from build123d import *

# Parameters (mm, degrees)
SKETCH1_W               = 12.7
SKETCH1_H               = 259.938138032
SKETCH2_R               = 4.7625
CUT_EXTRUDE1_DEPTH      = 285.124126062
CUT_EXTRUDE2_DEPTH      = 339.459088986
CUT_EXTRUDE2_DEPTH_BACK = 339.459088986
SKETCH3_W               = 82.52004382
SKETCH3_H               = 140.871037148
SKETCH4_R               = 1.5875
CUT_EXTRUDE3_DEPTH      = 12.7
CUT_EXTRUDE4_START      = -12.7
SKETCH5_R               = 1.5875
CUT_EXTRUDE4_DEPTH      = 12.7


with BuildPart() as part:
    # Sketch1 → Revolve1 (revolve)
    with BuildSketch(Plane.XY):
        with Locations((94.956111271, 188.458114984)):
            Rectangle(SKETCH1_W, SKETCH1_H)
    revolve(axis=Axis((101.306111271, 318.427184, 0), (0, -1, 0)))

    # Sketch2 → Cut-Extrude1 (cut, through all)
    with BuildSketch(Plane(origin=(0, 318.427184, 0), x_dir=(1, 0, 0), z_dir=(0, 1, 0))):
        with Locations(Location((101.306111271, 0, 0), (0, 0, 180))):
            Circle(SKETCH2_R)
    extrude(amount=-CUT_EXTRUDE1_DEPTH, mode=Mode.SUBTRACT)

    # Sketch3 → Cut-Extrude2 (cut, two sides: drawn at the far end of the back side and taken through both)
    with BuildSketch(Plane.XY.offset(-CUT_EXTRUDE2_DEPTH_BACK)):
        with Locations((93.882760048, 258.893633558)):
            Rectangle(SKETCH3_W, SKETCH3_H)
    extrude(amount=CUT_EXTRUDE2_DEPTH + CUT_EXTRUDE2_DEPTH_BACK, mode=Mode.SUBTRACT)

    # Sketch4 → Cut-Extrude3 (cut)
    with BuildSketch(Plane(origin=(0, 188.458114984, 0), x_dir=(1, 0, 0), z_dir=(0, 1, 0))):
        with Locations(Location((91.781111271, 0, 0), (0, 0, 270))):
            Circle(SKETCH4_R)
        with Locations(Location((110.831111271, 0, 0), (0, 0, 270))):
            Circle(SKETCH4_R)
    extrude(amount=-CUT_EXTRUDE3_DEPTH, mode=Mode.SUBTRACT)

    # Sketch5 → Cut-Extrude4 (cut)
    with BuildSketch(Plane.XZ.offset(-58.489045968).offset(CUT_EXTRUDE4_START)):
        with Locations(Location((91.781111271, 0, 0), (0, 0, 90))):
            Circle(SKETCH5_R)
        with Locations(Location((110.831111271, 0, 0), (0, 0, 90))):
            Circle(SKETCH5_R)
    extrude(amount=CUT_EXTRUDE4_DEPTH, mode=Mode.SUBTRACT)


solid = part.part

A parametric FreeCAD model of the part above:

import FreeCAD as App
import Part
import Sketcher
Q = App.Units.Quantity


def add_polygon(sketch, points):
    """Adds a closed chain of lines whose ends are joined by coincident constraints."""
    first, n = sketch.GeometryCount, len(points)
    for a, b in zip(points, points[1:] + points[:1]):
        sketch.addGeometry(Part.LineSegment(App.Vector(*a, 0), App.Vector(*b, 0)), False)
    for i in range(n):
        sketch.addConstraint(Sketcher.Constraint("Coincident", first + i, 2, first + (i + 1) % n, 1))

doc = App.newDocument("Part")
params = doc.addObject("Spreadsheet::Sheet", "Params")
for row, (alias, value) in enumerate([
    ("sketch1_width", "0.5 in"),
    ("revolution_angle", "360 deg"),
    ("sketch2_diameter", "0.375 in"),
    ("sketch4_diameter", "0.125 in"),
    ("pocket3_length", "0.5 in"),
    ("sketch5_diameter", "0.125 in"),
    ("pocket4_length", "0.5 in"),
], start=1):
    params.set(f"A{row}", alias)
    params.set(f"B{row}", "=" + value)
    params.setAlias(f"B{row}", alias)

body = doc.addObject("PartDesign::Body", "Body")

# Sketch on XY plane
sketch1 = body.newObject("Sketcher::SketchObject", "Sketch")
sketch1.AttachmentSupport = (doc.getObject("XY_Plane"), [""])
sketch1.MapMode = "FlatFace"
add_polygon(sketch1, [(88.606111, 318.427184), (88.606111, 58.489046), (101.306111, 58.489046), (101.306111, 318.427184)])  # lines 0-3
sketch1.addGeometry(Part.LineSegment(App.Vector(101.306111, 318.427184, 0), App.Vector(101.306111, 58.489046, 0)), True)  # axis
sketch1.addConstraint([
    Sketcher.Constraint("Vertical", 0),
    Sketcher.Constraint("Horizontal", 1),
    Sketcher.Constraint("Vertical", 2),
    Sketcher.Constraint("Horizontal", 3),
    Sketcher.Constraint("Vertical", 4),
    Sketcher.Constraint("Coincident", 4, 1, 2, 2),
    Sketcher.Constraint("Horizontal", 0, 2, 4, 2),
    Sketcher.Constraint("DistanceX", 1, 1, 1, 2, Q("0.5 in")),
    Sketcher.Constraint("DistanceY", 0, 2, 0, 1, 259.938138),
    Sketcher.Constraint("DistanceX", -1, 1, 0, 2, 88.606111),
    Sketcher.Constraint("DistanceY", -1, 1, 0, 2, 58.489046),
])
sketch1.setExpression("Constraints[11]", "Params.sketch1_width")
revolution = body.newObject("PartDesign::Revolution", "Revolution")
revolution.Profile = sketch1
revolution.ReferenceAxis = (sketch1, ["Axis0"])
revolution.setExpression("Angle", "Params.revolution_angle")

# Sketch on XZ plane
sketch2 = body.newObject("Sketcher::SketchObject", "Sketch001")
sketch2.AttachmentSupport = (doc.getObject("XZ_Plane"), [""])
sketch2.MapMode = "FlatFace"
sketch2.AttachmentOffset = App.Placement(App.Vector(0, 0, -318.427184), App.Rotation())
sketch2.addGeometry(Part.Circle(App.Vector(101.306111, 0, 0), App.Vector(0, 0, 1), 4.7625), False)
sketch2.addConstraint([
    Sketcher.Constraint("PointOnObject", 0, 3, -1),
    Sketcher.Constraint("Diameter", 0, Q("0.375 in")),
    Sketcher.Constraint("DistanceX", -1, 1, 0, 3, 101.306111),
])
sketch2.setExpression("Constraints[1]", "Params.sketch2_diameter")
pocket1 = body.newObject("PartDesign::Pocket", "Pocket")
pocket1.Profile = sketch2
pocket1.Type = "ThroughAll"
pocket1.Reversed = True

# Sketch on XY plane
sketch3 = body.newObject("Sketcher::SketchObject", "Sketch002")
sketch3.AttachmentSupport = (doc.getObject("XY_Plane"), [""])
sketch3.MapMode = "FlatFace"
add_polygon(sketch3, [(52.622738, 329.329152), (52.622738, 188.458115), (135.142782, 188.458115), (135.142782, 329.329152)])  # lines 0-3
sketch3.addConstraint([
    Sketcher.Constraint("Vertical", 0),
    Sketcher.Constraint("Horizontal", 1),
    Sketcher.Constraint("Vertical", 2),
    Sketcher.Constraint("Horizontal", 3),
    Sketcher.Constraint("DistanceX", 1, 1, 1, 2, 82.520044),
    Sketcher.Constraint("DistanceY", 0, 2, 0, 1, 140.871037),
    Sketcher.Constraint("DistanceX", -1, 1, 0, 2, 52.622738),
    Sketcher.Constraint("DistanceY", -1, 1, 0, 2, 188.458115),
])
pocket2 = body.newObject("PartDesign::Pocket", "Pocket001")
pocket2.Profile = sketch3
pocket2.Type = "ThroughAll"
pocket2.Midplane = True

# Sketch on XZ plane
sketch4 = body.newObject("Sketcher::SketchObject", "Sketch003")
sketch4.AttachmentSupport = (doc.getObject("XZ_Plane"), [""])
sketch4.MapMode = "FlatFace"
sketch4.AttachmentOffset = App.Placement(App.Vector(0, 0, -188.458115), App.Rotation())
sketch4.addGeometry([
    Part.Circle(App.Vector(91.781111, 0, 0), App.Vector(0, 0, 1), 1.5875),
    Part.Circle(App.Vector(110.831111, 0, 0), App.Vector(0, 0, 1), 1.5875),
], False)
sketch4.addConstraint([
    Sketcher.Constraint("Equal", 0, 1),
    Sketcher.Constraint("PointOnObject", 0, 3, -1),
    Sketcher.Constraint("PointOnObject", 1, 3, -1),
    Sketcher.Constraint("Diameter", 0, Q("0.125 in")),
    Sketcher.Constraint("DistanceX", 0, 3, 1, 3, Q("0.75 in")),
    Sketcher.Constraint("DistanceX", -1, 1, 0, 3, 91.781111),
])
sketch4.setExpression("Constraints[3]", "Params.sketch4_diameter")
pocket3 = body.newObject("PartDesign::Pocket", "Pocket002")
pocket3.Profile = sketch4
pocket3.setExpression("Length", "Params.pocket3_length")
pocket3.Reversed = True

# Sketch on XZ plane
sketch5 = body.newObject("Sketcher::SketchObject", "Sketch004")
sketch5.AttachmentSupport = (doc.getObject("XZ_Plane"), [""])
sketch5.MapMode = "FlatFace"
sketch5.AttachmentOffset = App.Placement(App.Vector(0, 0, -71.189046), App.Rotation())
sketch5.addGeometry([
    Part.Circle(App.Vector(91.781111, 0, 0), App.Vector(0, 0, 1), 1.5875),
    Part.Circle(App.Vector(110.831111, 0, 0), App.Vector(0, 0, 1), 1.5875),
], False)
sketch5.addConstraint([
    Sketcher.Constraint("Equal", 0, 1),
    Sketcher.Constraint("PointOnObject", 0, 3, -1),
    Sketcher.Constraint("PointOnObject", 1, 3, -1),
    Sketcher.Constraint("Diameter", 0, Q("0.125 in")),
    Sketcher.Constraint("DistanceX", 0, 3, 1, 3, Q("0.75 in")),
    Sketcher.Constraint("DistanceX", -1, 1, 0, 3, 91.781111),
])
sketch5.setExpression("Constraints[3]", "Params.sketch5_diameter")
pocket4 = body.newObject("PartDesign::Pocket", "Pocket003")
pocket4.Profile = sketch5
pocket4.setExpression("Length", "Params.pocket4_length")
pocket4.Reversed = True

doc.recompute()
